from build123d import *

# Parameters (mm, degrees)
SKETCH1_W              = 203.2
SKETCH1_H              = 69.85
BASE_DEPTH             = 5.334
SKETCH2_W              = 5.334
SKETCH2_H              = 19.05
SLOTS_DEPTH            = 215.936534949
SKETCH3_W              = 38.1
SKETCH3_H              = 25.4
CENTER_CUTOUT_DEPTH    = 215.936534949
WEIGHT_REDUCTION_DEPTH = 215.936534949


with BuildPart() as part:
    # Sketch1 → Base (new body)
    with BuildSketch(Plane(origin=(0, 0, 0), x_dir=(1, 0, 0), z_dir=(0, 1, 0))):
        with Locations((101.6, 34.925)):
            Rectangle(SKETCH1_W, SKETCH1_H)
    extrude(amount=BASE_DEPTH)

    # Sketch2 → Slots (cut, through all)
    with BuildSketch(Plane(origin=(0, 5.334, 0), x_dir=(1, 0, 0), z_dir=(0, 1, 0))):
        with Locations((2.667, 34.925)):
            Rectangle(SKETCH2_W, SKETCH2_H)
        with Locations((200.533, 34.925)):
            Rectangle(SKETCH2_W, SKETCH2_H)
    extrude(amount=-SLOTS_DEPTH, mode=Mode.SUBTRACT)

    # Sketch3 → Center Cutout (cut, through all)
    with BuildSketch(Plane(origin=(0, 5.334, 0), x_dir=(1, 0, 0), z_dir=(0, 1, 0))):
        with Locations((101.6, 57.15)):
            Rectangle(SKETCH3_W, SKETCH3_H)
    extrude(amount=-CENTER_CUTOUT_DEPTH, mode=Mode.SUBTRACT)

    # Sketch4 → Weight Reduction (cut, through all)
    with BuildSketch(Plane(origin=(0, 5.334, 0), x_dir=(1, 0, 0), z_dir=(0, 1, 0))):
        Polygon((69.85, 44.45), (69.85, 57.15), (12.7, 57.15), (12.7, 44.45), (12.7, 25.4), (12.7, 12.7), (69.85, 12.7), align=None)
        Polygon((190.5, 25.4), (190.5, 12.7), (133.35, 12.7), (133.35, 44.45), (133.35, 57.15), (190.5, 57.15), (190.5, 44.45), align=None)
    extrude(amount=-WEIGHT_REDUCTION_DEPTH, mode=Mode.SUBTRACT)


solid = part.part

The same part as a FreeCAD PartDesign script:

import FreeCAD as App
import Part
import Sketcher
Q = App.Units.Quantity

doc = App.newDocument("Part")
body = doc.addObject("PartDesign::Body", "Body")

# Sketch on XZ plane
sketch1 = body.newObject("Sketcher::SketchObject", "Sketch")
sketch1.AttachmentSupport = (doc.getObject("XZ_Plane"), [""])
sketch1.MapMode = "FlatFace"
sketch1.addGeometry(Part.LineSegment(App.Vector(0, -70, 0), App.Vector(0, 0, 0)), False)
sketch1.addGeometry(Part.LineSegment(App.Vector(0, 0, 0), App.Vector(203, 0, 0)), False)
sketch1.addGeometry(Part.LineSegment(App.Vector(203, 0, 0), App.Vector(203, -70, 0)), False)
sketch1.addGeometry(Part.LineSegment(App.Vector(203, -70, 0), App.Vector(0, -70, 0)), False)
sketch1.addConstraint(Sketcher.Constraint("Coincident", 0, 2, 1, 1))
sketch1.addConstraint(Sketcher.Constraint("Coincident", 1, 2, 2, 1))
sketch1.addConstraint(Sketcher.Constraint("Coincident", 2, 2, 3, 1))
sketch1.addConstraint(Sketcher.Constraint("Coincident", 3, 2, 0, 1))
sketch1.addConstraint(Sketcher.Constraint("Vertical", 0))
sketch1.addConstraint(Sketcher.Constraint("Horizontal", 1))
sketch1.addConstraint(Sketcher.Constraint("Vertical", 2))
sketch1.addConstraint(Sketcher.Constraint("Horizontal", 3))
sketch1.addConstraint(Sketcher.Constraint("Coincident", 0, 2, -1, 1))
sketch1.addConstraint(Sketcher.Constraint("DistanceX", 1, 1, 1, 2, Q("8 in")))
sketch1.addConstraint(Sketcher.Constraint("DistanceY", 0, 1, 0, 2, Q("2.75 in")))
pad1 = body.newObject("PartDesign::Pad", "Pad")
pad1.Profile = sketch1
pad1.Length = Q("0.21 in")
pad1.Reversed = True

# Sketch on XZ plane
sketch2 = body.newObject("Sketcher::SketchObject", "Sketch001")
sketch2.AttachmentSupport = (doc.getObject("XZ_Plane"), [""])
sketch2.MapMode = "FlatFace"
sketch2.AttachmentOffset = App.Placement(App.Vector(0, 0, -0.21 * 25.4), App.Rotation())
sketch2.addGeometry(Part.LineSegment(App.Vector(0, -44, 0), App.Vector(0, -25, 0)), False)
sketch2.addGeometry(Part.LineSegment(App.Vector(0, -25, 0), App.Vector(5, -25, 0)), False)
sketch2.addGeometry(Part.LineSegment(App.Vector(5, -25, 0), App.Vector(5, -44, 0)), False)
sketch2.addGeometry(Part.LineSegment(App.Vector(5, -44, 0), App.Vector(0, -44, 0)), False)
sketch2.addGeometry(Part.LineSegment(App.Vector(198, -44, 0), App.Vector(198, -25, 0)), False)
sketch2.addGeometry(Part.LineSegment(App.Vector(198, -25, 0), App.Vector(203, -25, 0)), False)
sketch2.addGeometry(Part.LineSegment(App.Vector(203, -25, 0), App.Vector(203, -44, 0)), False)
sketch2.addGeometry(Part.LineSegment(App.Vector(203, -44, 0), App.Vector(198, -44, 0)), False)
sketch2.addConstraint(Sketcher.Constraint("Coincident", 0, 2, 1, 1))
sketch2.addConstraint(Sketcher.Constraint("Coincident", 1, 2, 2, 1))
sketch2.addConstraint(Sketcher.Constraint("Coincident", 2, 2, 3, 1))
sketch2.addConstraint(Sketcher.Constraint("Coincident", 3, 2, 0, 1))
sketch2.addConstraint(Sketcher.Constraint("Coincident", 4, 2, 5, 1))
sketch2.addConstraint(Sketcher.Constraint("Coincident", 5, 2, 6, 1))
sketch2.addConstraint(Sketcher.Constraint("Coincident", 6, 2, 7, 1))
sketch2.addConstraint(Sketcher.Constraint("Coincident", 7, 2, 4, 1))
sketch2.addConstraint(Sketcher.Constraint("Vertical", 0))
sketch2.addConstraint(Sketcher.Constraint("Horizontal", 1))
sketch2.addConstraint(Sketcher.Constraint("Vertical", 2))
sketch2.addConstraint(Sketcher.Constraint("Horizontal", 3))
sketch2.addConstraint(Sketcher.Constraint("Vertical", 4))
sketch2.addConstraint(Sketcher.Constraint("Horizontal", 5))
sketch2.addConstraint(Sketcher.Constraint("Vertical", 6))
sketch2.addConstraint(Sketcher.Constraint("Horizontal", 7))
sketch2.addConstraint(Sketcher.Constraint("PointOnObject", 0, 2, -2))
sketch2.addConstraint(Sketcher.Constraint("Horizontal", 1, 2, 4, 2))
sketch2.addConstraint(Sketcher.Constraint("Horizontal", 3, 2, 6, 2))
sketch2.addConstraint(Sketcher.Constraint("Equal", 3, 5))
sketch2.addConstraint(Sketcher.Constraint("DistanceY", 0, 2, -1, 1, Q("1 in")))
sketch2.addConstraint(Sketcher.Constraint("DistanceX", -1, 1, 5, 2, Q("8 in")))
sketch2.addConstraint(Sketcher.Constraint("DistanceX", 1, 1, 1, 2, Q("0.21 in")))
sketch2.addConstraint(Sketcher.Constraint("DistanceY", 0, 1, 0, 2, Q("0.75 in")))
pocket1 = body.newObject("PartDesign::Pocket", "Pocket")
pocket1.Profile = sketch2
pocket1.Type = "ThroughAll"
pocket1.Reversed = True

# Sketch on XZ plane
sketch3 = body.newObject("Sketcher::SketchObject", "Sketch002")
sketch3.AttachmentSupport = (doc.getObject("XZ_Plane"), [""])
sketch3.MapMode = "FlatFace"
sketch3.AttachmentOffset = App.Placement(App.Vector(0, 0, -0.21 * 25.4), App.Rotation())
sketch3.addGeometry(Part.LineSegment(App.Vector(83, -70, 0), App.Vector(83, -44, 0)), False)
sketch3.addGeometry(Part.LineSegment(App.Vector(83, -44, 0), App.Vector(121, -44, 0)), False)
sketch3.addGeometry(Part.LineSegment(App.Vector(121, -44, 0), App.Vector(121, -70, 0)), False)
sketch3.addGeometry(Part.LineSegment(App.Vector(121, -70, 0), App.Vector(83, -70, 0)), False)
sketch3.addConstraint(Sketcher.Constraint("Coincident", 0, 2, 1, 1))
sketch3.addConstraint(Sketcher.Constraint("Coincident", 1, 2, 2, 1))
sketch3.addConstraint(Sketcher.Constraint("Coincident", 2, 2, 3, 1))
sketch3.addConstraint(Sketcher.Constraint("Coincident", 3, 2, 0, 1))
sketch3.addConstraint(Sketcher.Constraint("Vertical", 0))
sketch3.addConstraint(Sketcher.Constraint("Horizontal", 1))
sketch3.addConstraint(Sketcher.Constraint("Vertical", 2))
sketch3.addConstraint(Sketcher.Constraint("Horizontal", 3))
sketch3.addConstraint(Sketcher.Constraint("DistanceY", 0, 1, 0, 2, Q("1 in")))
sketch3.addConstraint(Sketcher.Constraint("DistanceX", 1, 1, 1, 2, Q("1.5 in")))
sketch3.addConstraint(Sketcher.Constraint("DistanceX", -1, 1, 0, 2, Q("3.25 in")))
sketch3.addConstraint(Sketcher.Constraint("DistanceY", 0, 2, -1, 1, Q("1.75 in")))
pocket2 = body.newObject("PartDesign::Pocket", "Pocket001")
pocket2.Profile = sketch3
pocket2.Type = "ThroughAll"
pocket2.Reversed = True

# Sketch on XZ plane
sketch4 = body.newObject("Sketcher::SketchObject", "Sketch003")
sketch4.AttachmentSupport = (doc.getObject("XZ_Plane"), [""])
sketch4.MapMode = "FlatFace"
sketch4.AttachmentOffset = App.Placement(App.Vector(0, 0, -0.21 * 25.4), App.Rotation())
sketch4.addGeometry(Part.LineSegment(App.Vector(70, -57, 0), App.Vector(13, -57, 0)), False)
sketch4.addGeometry(Part.LineSegment(App.Vector(13, -57, 0), App.Vector(13, -13, 0)), False)
sketch4.addGeometry(Part.LineSegment(App.Vector(13, -13, 0), App.Vector(70, -13, 0)), False)
sketch4.addGeometry(Part.LineSegment(App.Vector(70, -13, 0), App.Vector(70, -57, 0)), False)
sketch4.addGeometry(Part.LineSegment(App.Vector(190, -13, 0), App.Vector(190, -57, 0)), False)
sketch4.addGeometry(Part.LineSegment(App.Vector(190, -57, 0), App.Vector(133, -57, 0)), False)
sketch4.addGeometry(Part.LineSegment(App.Vector(133, -57, 0), App.Vector(133, -13, 0)), False)
sketch4.addGeometry(Part.LineSegment(App.Vector(133, -13, 0), App.Vector(190, -13, 0)), False)
sketch4.addConstraint(Sketcher.Constraint("Coincident", 0, 2, 1, 1))
sketch4.addConstraint(Sketcher.Constraint("Coincident", 1, 2, 2, 1))
sketch4.addConstraint(Sketcher.Constraint("Coincident", 2, 2, 3, 1))
sketch4.addConstraint(Sketcher.Constraint("Coincident", 3, 2, 0, 1))
sketch4.addConstraint(Sketcher.Constraint("Coincident", 4, 2, 5, 1))
sketch4.addConstraint(Sketcher.Constraint("Coincident", 5, 2, 6, 1))
sketch4.addConstraint(Sketcher.Constraint("Coincident", 6, 2, 7, 1))
sketch4.addConstraint(Sketcher.Constraint("Coincident", 7, 2, 4, 1))
sketch4.addConstraint(Sketcher.Constraint("Horizontal", 0))
sketch4.addConstraint(Sketcher.Constraint("Vertical", 1))
sketch4.addConstraint(Sketcher.Constraint("Horizontal", 2))
sketch4.addConstraint(Sketcher.Constraint("Vertical", 3))
sketch4.addConstraint(Sketcher.Constraint("Vertical", 4))
sketch4.addConstraint(Sketcher.Constraint("Horizontal", 5))
sketch4.addConstraint(Sketcher.Constraint("Vertical", 6))
sketch4.addConstraint(Sketcher.Constraint("Horizontal", 7))
sketch4.addConstraint(Sketcher.Constraint("Horizontal", 3, 2, 4, 2))
sketch4.addConstraint(Sketcher.Constraint("Horizontal", 2, 2, 6, 2))
sketch4.addConstraint(Sketcher.Constraint("Equal", 2, 5))
sketch4.addConstraint(Sketcher.Constraint("DistanceX", 0, 2, 4, 2, Q("7 in")))
sketch4.addConstraint(Sketcher.Constraint("DistanceX", 0, 2, 0, 1, Q("2.25 in")))
sketch4.addConstraint(Sketcher.Constraint("DistanceY", 1, 1, 1, 2, Q("1.75 in")))
sketch4.addConstraint(Sketcher.Constraint("DistanceX", -1, 1, 0, 2, Q("0.5 in")))
sketch4.addConstraint(Sketcher.Constraint("DistanceY", 1, 2, -1, 1, Q("0.5 in")))
pocket3 = body.newObject("PartDesign::Pocket", "Pocket002")
pocket3.Profile = sketch4
pocket3.Type = "ThroughAll"
pocket3.Reversed = True

doc.recompute()
